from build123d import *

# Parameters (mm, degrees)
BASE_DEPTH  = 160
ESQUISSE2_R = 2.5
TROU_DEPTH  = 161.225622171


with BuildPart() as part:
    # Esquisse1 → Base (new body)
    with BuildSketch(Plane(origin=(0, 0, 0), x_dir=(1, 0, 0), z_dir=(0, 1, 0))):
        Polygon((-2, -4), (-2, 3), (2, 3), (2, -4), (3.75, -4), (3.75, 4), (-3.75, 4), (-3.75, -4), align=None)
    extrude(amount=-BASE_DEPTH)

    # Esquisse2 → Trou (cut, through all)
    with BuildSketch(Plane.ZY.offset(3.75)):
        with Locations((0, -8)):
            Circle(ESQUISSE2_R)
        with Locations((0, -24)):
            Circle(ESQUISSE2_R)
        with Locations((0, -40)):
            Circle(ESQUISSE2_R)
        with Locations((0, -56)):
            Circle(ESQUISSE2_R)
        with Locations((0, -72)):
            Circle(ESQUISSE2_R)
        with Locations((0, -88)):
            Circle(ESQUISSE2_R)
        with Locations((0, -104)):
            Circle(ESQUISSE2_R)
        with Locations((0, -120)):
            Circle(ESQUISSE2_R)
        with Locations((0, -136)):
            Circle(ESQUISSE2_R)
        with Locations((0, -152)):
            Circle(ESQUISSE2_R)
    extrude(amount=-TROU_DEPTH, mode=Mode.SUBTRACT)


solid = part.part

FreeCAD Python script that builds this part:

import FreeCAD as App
import Part
import Sketcher

V = App.Vector
Q = App.Units.Quantity


def add_polygon(sketch, points):
    """Adds a closed chain of lines whose ends are joined by coincident constraints."""
    first, n = sketch.GeometryCount, len(points)
    for a, b in zip(points, points[1:] + points[:1]):
        sketch.addGeometry(Part.LineSegment(App.Vector(*a, 0), App.Vector(*b, 0)), False)
    for i in range(n):
        sketch.addConstraint(Sketcher.Constraint("Coincident", first + i, 2, first + (i + 1) % n, 1))

doc = App.newDocument("Part")
params = doc.addObject("Spreadsheet::Sheet", "Params")
for row, (alias, value) in enumerate([
    ("sketch1_width", "4 mm"),
    ("sketch1_height", "7 mm"),
    ("sketch1_height2", "8 mm"),
    ("sketch1_width2", "7.5 mm"),
    ("pad1_length", "160 mm"),
    ("sketch2_diameter", "5 mm"),
], start=1):
    params.set(f"A{row}", alias)
    params.set(f"B{row}", "=" + value)
    params.setAlias(f"B{row}", alias)

body = doc.addObject("PartDesign::Body", "Body")

sketch1 = body.newObject("Sketcher::SketchObject", "Sketch")
sketch1.AttachmentSupport = (doc.getObject("XZ_Plane"), [""])
sketch1.MapMode = "FlatFace"
add_polygon(sketch1, [(-2, 4), (-2, -3), (2, -3), (2, 4), (3.8, 4), (3.8, -4), (-3.8, -4), (-3.8, 4)])
sketch1.addConstraint(Sketcher.Constraint("Vertical", 0))
sketch1.addConstraint(Sketcher.Constraint("Horizontal", 1))
sketch1.addConstraint(Sketcher.Constraint("Vertical", 2))
sketch1.addConstraint(Sketcher.Constraint("Horizontal", 3))
sketch1.addConstraint(Sketcher.Constraint("Vertical", 4))
sketch1.addConstraint(Sketcher.Constraint("Horizontal", 5))
sketch1.addConstraint(Sketcher.Constraint("Vertical", 6))
sketch1.addConstraint(Sketcher.Constraint("Horizontal", 7))
sketch1.addConstraint(Sketcher.Constraint("Symmetric", 3, 2, 5, 2, -1, 1))
sketch1.addConstraint(Sketcher.Constraint("Symmetric", 2, 2, 7, 2, -2))
sketch1.addConstraint(Sketcher.Constraint("DistanceX", 1, 1, 1, 2, Q("4 mm")))
sketch1.addConstraint(Sketcher.Constraint("DistanceY", 0, 2, 0, 1, Q("7 mm")))
sketch1.addConstraint(Sketcher.Constraint("DistanceY", 4, 2, 4, 1, Q("8 mm")))
sketch1.addConstraint(Sketcher.Constraint("DistanceX", 5, 2, 5, 1, Q("7.5 mm")))
sketch1.setExpression("Constraints[18]", "Params.sketch1_width")
sketch1.setExpression("Constraints[19]", "Params.sketch1_height")
sketch1.setExpression("Constraints[20]", "Params.sketch1_height2")
sketch1.setExpression("Constraints[21]", "Params.sketch1_width2")
pad1 = body.newObject("PartDesign::Pad", "Pad")
pad1.Profile = sketch1
pad1.setExpression("Length", "Params.pad1_length")

sketch2 = body.newObject("Sketcher::SketchObject", "Sketch001")
sketch2.AttachmentSupport = (doc.getObject("YZ_Plane"), [""])
sketch2.MapMode = "FlatFace"
sketch2.AttachmentOffset = App.Placement(V(0, 0, -3.75), App.Rotation())
sketch2.addGeometry(Part.Circle(V(-8, 0, 0), V(0, 0, 1), 2.5), False)
sketch2.addGeometry(Part.Circle(V(-24, 0, 0), V(0, 0, 1), 2.5), False)
sketch2.addGeometry(Part.Circle(V(-40, 0, 0), V(0, 0, 1), 2.5), False)
sketch2.addGeometry(Part.Circle(V(-56, 0, 0), V(0, 0, 1), 2.5), False)
sketch2.addGeometry(Part.Circle(V(-72, 0, 0), V(0, 0, 1), 2.5), False)
sketch2.addGeometry(Part.Circle(V(-88, 0, 0), V(0, 0, 1), 2.5), False)
sketch2.addGeometry(Part.Circle(V(-104, 0, 0), V(0, 0, 1), 2.5), False)
sketch2.addGeometry(Part.Circle(V(-120, 0, 0), V(0, 0, 1), 2.5), False)
sketch2.addGeometry(Part.Circle(V(-136, 0, 0), V(0, 0, 1), 2.5), False)
sketch2.addGeometry(Part.Circle(V(-152, 0, 0), V(0, 0, 1), 2.5), False)
sketch2.addConstraint(Sketcher.Constraint("Equal", 0, 1))
sketch2.addConstraint(Sketcher.Constraint("Equal", 1, 2))
sketch2.addConstraint(Sketcher.Constraint("Equal", 2, 3))
sketch2.addConstraint(Sketcher.Constraint("Equal", 3, 4))
sketch2.addConstraint(Sketcher.Constraint("Equal", 4, 5))
sketch2.addConstraint(Sketcher.Constraint("Equal", 5, 6))
sketch2.addConstraint(Sketcher.Constraint("Equal", 6, 7))
sketch2.addConstraint(Sketcher.Constraint("Equal", 7, 8))
sketch2.addConstraint(Sketcher.Constraint("Equal", 8, 9))
sketch2.addConstraint(Sketcher.Constraint("PointOnObject", 0, 3, -1))
sketch2.addConstraint(Sketcher.Constraint("PointOnObject", 1, 3, -1))
sketch2.addConstraint(Sketcher.Constraint("PointOnObject", 2, 3, -1))
sketch2.addConstraint(Sketcher.Constraint("PointOnObject", 3, 3, -1))
sketch2.addConstraint(Sketcher.Constraint("PointOnObject", 4, 3, -1))
sketch2.addConstraint(Sketcher.Constraint("PointOnObject", 5, 3, -1))
sketch2.addConstraint(Sketcher.Constraint("PointOnObject", 6, 3, -1))
sketch2.addConstraint(Sketcher.Constraint("PointOnObject", 7, 3, -1))
sketch2.addConstraint(Sketcher.Constraint("PointOnObject", 8, 3, -1))
sketch2.addConstraint(Sketcher.Constraint("PointOnObject", 9, 3, -1))
sketch2.addConstraint(Sketcher.Constraint("Diameter", 0, Q("5 mm")))
sketch2.addConstraint(Sketcher.Constraint("DistanceX", 0, 3, -1, 1, Q("8 mm")))
sketch2.addConstraint(Sketcher.Constraint("DistanceX", 1, 3, -1, 1, Q("24 mm")))
sketch2.addConstraint(Sketcher.Constraint("DistanceX", 2, 3, -1, 1, Q("40 mm")))
sketch2.addConstraint(Sketcher.Constraint("DistanceX", 3, 3, -1, 1, Q("56 mm")))
sketch2.addConstraint(Sketcher.Constraint("DistanceX", 4, 3, -1, 1, Q("72 mm")))
sketch2.addConstraint(Sketcher.Constraint("DistanceX", 5, 3, -1, 1, Q("88 mm")))
sketch2.addConstraint(Sketcher.Constraint("DistanceX", 6, 3, -1, 1, Q("104 mm")))
sketch2.addConstraint(Sketcher.Constraint("DistanceX", 7, 3, -1, 1, Q("120 mm")))
sketch2.addConstraint(Sketcher.Constraint("DistanceX", 8, 3, -1, 1, Q("136 mm")))
sketch2.addConstraint(Sketcher.Constraint("DistanceX", 9, 3, -1, 1, Q("152 mm")))
sketch2.setExpression("Constraints[19]", "Params.sketch2_diameter")
pocket1 = body.newObject("PartDesign::Pocket", "Pocket")
pocket1.Profile = sketch2
pocket1.Type = "ThroughAll"
pocket1.Reversed = True

doc.recompute()
